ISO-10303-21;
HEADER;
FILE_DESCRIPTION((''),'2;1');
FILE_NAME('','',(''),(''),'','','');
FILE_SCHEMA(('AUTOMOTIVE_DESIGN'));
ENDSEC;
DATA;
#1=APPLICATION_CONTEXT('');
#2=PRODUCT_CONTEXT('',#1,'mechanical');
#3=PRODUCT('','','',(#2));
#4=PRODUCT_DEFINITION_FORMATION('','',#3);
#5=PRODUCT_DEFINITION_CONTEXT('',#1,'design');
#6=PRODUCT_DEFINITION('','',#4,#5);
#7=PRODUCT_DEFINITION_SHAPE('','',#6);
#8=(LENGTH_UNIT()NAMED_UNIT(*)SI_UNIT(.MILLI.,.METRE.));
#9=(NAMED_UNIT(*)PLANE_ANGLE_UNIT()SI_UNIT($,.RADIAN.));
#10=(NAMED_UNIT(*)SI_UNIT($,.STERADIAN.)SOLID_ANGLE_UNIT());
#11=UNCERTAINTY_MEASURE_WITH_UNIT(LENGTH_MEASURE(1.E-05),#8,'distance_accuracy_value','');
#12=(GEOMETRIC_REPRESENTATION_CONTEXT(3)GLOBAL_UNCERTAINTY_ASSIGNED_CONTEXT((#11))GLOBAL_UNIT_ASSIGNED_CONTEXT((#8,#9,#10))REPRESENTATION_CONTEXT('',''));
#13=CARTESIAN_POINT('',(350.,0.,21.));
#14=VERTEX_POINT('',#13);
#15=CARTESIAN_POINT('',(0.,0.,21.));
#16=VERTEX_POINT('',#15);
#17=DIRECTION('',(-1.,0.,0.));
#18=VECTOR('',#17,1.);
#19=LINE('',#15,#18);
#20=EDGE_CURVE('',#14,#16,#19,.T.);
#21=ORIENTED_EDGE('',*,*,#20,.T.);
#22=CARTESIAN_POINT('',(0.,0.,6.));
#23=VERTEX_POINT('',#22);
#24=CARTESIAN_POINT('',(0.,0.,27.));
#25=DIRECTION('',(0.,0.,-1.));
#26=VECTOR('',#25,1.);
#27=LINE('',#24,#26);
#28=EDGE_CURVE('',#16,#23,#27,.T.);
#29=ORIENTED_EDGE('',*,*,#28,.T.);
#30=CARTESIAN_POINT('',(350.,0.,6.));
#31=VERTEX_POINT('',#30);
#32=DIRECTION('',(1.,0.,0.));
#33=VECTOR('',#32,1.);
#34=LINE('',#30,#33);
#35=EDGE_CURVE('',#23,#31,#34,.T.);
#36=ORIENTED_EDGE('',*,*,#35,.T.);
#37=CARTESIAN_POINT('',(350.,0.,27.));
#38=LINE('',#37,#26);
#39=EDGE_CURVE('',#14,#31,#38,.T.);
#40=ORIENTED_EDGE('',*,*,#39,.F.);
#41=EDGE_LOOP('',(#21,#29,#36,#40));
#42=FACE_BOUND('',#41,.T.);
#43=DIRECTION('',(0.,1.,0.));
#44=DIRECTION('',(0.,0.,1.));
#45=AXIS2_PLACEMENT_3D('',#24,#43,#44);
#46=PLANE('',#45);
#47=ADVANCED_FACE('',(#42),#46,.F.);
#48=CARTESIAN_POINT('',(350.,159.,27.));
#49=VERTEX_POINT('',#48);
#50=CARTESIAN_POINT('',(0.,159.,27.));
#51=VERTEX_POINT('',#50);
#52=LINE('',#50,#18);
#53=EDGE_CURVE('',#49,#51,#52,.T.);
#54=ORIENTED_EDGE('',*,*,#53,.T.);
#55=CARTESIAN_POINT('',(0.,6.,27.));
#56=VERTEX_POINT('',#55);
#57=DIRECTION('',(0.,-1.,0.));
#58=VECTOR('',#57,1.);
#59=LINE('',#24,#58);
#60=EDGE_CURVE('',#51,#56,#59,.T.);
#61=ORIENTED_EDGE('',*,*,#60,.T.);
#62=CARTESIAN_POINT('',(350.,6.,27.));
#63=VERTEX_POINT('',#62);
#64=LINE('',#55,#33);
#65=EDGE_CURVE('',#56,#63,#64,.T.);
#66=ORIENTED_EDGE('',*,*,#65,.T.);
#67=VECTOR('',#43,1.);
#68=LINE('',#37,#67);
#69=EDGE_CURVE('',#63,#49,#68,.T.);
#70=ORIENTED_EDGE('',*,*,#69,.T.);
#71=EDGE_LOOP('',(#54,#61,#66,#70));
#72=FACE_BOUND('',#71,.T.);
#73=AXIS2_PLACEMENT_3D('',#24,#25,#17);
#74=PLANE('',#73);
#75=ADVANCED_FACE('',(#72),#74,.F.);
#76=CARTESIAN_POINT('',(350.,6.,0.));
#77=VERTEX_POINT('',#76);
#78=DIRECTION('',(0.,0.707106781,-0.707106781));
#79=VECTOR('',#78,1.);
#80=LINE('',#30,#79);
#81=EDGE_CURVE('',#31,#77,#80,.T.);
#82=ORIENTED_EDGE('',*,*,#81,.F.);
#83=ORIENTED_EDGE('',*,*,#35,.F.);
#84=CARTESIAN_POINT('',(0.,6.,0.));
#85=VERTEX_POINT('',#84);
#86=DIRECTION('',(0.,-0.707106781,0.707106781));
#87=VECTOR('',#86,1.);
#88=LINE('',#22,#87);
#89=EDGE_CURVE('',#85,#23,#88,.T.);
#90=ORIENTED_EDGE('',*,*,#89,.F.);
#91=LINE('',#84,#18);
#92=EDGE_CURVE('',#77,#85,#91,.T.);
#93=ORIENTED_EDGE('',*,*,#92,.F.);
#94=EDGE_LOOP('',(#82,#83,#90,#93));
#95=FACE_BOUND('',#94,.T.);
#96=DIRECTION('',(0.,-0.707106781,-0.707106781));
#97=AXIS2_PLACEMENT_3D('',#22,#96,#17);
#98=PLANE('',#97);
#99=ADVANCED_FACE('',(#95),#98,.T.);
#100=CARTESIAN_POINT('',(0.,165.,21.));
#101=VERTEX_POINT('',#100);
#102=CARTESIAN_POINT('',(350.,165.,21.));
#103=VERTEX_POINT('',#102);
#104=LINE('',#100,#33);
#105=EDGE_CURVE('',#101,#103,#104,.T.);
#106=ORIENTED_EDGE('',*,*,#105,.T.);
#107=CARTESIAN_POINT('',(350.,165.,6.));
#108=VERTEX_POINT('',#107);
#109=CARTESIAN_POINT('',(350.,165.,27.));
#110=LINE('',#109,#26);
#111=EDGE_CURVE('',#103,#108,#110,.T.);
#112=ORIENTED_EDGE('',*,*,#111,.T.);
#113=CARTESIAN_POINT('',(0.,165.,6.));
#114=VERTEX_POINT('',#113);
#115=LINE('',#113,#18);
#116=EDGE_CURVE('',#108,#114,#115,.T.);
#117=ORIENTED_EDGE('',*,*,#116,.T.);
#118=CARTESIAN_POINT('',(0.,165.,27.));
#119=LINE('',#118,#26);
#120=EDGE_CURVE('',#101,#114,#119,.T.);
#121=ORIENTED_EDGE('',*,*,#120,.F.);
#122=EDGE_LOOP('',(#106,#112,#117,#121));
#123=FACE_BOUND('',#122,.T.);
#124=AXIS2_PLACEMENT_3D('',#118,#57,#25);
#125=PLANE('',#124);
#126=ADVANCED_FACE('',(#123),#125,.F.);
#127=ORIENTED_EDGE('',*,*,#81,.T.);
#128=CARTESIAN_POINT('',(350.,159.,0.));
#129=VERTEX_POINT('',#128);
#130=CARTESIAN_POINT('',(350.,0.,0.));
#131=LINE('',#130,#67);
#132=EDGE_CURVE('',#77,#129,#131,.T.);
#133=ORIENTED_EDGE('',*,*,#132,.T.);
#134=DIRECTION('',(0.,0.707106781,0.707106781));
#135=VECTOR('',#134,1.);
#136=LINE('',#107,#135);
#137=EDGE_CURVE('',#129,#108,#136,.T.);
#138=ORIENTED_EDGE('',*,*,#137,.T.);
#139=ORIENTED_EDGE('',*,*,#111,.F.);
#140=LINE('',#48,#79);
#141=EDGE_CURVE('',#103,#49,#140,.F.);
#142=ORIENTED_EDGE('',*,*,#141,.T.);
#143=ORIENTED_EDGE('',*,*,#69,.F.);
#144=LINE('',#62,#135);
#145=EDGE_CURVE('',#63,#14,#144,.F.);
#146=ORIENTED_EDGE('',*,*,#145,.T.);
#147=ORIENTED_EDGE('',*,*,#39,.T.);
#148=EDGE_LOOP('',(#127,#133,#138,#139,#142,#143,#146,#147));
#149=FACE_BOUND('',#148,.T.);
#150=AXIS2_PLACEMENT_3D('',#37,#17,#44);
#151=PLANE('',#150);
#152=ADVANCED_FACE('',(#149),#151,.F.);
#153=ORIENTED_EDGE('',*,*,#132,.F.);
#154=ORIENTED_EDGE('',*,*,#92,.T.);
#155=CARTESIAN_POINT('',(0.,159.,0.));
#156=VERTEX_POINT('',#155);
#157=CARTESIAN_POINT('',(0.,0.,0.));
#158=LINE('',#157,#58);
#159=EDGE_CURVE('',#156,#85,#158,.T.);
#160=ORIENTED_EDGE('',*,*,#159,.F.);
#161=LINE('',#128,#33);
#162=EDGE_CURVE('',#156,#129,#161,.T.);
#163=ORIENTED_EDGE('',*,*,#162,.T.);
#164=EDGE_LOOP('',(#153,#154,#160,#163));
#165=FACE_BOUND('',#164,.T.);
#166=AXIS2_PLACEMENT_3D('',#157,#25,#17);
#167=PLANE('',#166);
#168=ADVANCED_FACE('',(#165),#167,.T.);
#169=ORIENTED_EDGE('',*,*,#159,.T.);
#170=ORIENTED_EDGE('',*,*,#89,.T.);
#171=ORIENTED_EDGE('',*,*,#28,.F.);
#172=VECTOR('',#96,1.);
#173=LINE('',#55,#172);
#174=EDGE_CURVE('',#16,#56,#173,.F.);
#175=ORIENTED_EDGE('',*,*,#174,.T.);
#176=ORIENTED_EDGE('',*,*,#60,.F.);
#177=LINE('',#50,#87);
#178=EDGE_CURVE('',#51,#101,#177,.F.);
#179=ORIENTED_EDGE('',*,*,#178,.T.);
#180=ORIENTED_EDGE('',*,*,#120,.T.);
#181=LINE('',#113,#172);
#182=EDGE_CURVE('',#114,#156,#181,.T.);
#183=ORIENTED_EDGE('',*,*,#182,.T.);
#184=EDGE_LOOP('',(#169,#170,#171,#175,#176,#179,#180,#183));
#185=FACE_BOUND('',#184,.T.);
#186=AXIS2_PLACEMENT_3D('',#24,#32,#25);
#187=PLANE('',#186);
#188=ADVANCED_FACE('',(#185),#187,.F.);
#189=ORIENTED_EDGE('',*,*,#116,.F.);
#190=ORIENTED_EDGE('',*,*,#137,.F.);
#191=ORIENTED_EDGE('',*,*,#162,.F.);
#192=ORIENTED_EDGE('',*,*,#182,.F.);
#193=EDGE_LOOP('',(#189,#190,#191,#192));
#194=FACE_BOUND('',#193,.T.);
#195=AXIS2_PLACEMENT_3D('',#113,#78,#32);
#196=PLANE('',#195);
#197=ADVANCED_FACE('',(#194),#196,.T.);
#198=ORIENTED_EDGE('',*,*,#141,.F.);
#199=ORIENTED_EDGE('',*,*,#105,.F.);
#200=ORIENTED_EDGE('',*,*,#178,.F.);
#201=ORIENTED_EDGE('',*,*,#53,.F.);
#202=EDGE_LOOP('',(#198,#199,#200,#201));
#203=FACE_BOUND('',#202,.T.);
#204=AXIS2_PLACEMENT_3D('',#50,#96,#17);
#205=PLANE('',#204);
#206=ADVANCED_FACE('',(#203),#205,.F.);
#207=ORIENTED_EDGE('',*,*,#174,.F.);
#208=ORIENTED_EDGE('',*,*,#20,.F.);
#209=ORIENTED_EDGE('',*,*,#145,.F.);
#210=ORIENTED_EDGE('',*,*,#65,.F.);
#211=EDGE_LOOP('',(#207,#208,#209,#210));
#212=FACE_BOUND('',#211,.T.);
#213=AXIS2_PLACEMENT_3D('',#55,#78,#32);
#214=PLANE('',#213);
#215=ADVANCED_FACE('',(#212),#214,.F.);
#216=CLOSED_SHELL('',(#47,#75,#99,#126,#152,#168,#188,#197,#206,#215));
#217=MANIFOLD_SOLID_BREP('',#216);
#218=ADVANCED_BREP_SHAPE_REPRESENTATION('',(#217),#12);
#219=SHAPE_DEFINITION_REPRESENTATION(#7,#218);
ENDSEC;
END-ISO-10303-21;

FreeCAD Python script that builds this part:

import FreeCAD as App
import Part
import Sketcher
from FreeCAD import Vector
Q = App.Units.Quantity


def edges_at(feature, points):
    """Names of the edges that pass closest to the given points."""
    edges = feature.Shape.Edges
    near = lambda p: min(range(len(edges)), key=lambda i: edges[i].distToShape(Part.Vertex(*p))[0])
    return sorted({f"Edge{near(p) + 1}" for p in points})

doc = App.newDocument("Part")
body = doc.addObject("PartDesign::Body", "Body")

# Sketch on XY plane
sketch1 = doc.addObject("Sketcher::SketchObject", "Sketch")
body.addObject(sketch1)
sketch1.AttachmentSupport = (doc.XY_Plane, [""])
sketch1.MapMode = "FlatFace"
sketch1.addGeometry(Part.LineSegment(Vector(0, 165, 0), Vector(0, 0, 0)), False)
sketch1.addGeometry(Part.LineSegment(Vector(0, 0, 0), Vector(350, 0, 0)), False)
sketch1.addGeometry(Part.LineSegment(Vector(350, 0, 0), Vector(350, 165, 0)), False)
sketch1.addGeometry(Part.LineSegment(Vector(350, 165, 0), Vector(0, 165, 0)), False)
sketch1.addConstraint(Sketcher.Constraint("Coincident", 0, 2, 1, 1))
sketch1.addConstraint(Sketcher.Constraint("Coincident", 1, 2, 2, 1))
sketch1.addConstraint(Sketcher.Constraint("Coincident", 2, 2, 3, 1))
sketch1.addConstraint(Sketcher.Constraint("Coincident", 3, 2, 0, 1))
sketch1.addConstraint(Sketcher.Constraint("Vertical", 0))
sketch1.addConstraint(Sketcher.Constraint("Horizontal", 1))
sketch1.addConstraint(Sketcher.Constraint("Vertical", 2))
sketch1.addConstraint(Sketcher.Constraint("Horizontal", 3))
sketch1.addConstraint(Sketcher.Constraint("Coincident", 0, 2, -1, 1))
sketch1.addConstraint(Sketcher.Constraint("DistanceX", 1, 1, 1, 2, Q("350 mm")))
sketch1.addConstraint(Sketcher.Constraint("DistanceY", 0, 2, 0, 1, Q("165 mm")))
pad1 = doc.addObject("PartDesign::Pad", "Pad")
body.addObject(pad1)
pad1.Profile = sketch1
pad1.Length = 27
doc.recompute()

chamfer = doc.addObject("PartDesign::Chamfer", "Chamfer")
body.addObject(chamfer)
chamfer.Base = (pad1, edges_at(pad1, [
    (175, 165, 27),
    (175, 165, 0),
    (175, 0, 0),
    (175, 0, 27),
]))
chamfer.Size = 6

doc.recompute()
